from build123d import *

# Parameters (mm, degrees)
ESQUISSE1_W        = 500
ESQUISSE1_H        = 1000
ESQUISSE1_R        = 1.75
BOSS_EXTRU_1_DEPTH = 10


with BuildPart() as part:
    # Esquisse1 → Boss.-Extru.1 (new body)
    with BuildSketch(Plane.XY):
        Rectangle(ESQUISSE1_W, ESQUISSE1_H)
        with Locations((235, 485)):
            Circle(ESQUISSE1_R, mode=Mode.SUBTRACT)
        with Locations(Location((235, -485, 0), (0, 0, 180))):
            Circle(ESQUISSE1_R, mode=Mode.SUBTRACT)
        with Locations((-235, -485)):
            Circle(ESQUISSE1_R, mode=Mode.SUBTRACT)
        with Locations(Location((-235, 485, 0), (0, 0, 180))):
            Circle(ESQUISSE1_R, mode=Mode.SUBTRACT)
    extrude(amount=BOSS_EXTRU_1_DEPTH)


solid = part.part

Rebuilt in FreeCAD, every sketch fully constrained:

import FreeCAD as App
import Part
import Sketcher

V = App.Vector

doc = App.newDocument("Part")
body = doc.addObject("PartDesign::Body", "Body")

# Sketch on XY plane
sketch1 = body.newObject("Sketcher::SketchObject", "Sketch")
sketch1.AttachmentSupport = (doc.getObject("XY_Plane"), [""])
sketch1.MapMode = "FlatFace"
sketch1.addGeometry([
    Part.LineSegment(V(-250, 500, 0), V(-250, -500, 0)),  # 0
    Part.LineSegment(V(-250, -500, 0), V(250, -500, 0)),  # 1
    Part.LineSegment(V(250, -500, 0), V(250, 500, 0)),  # 2
    Part.LineSegment(V(250, 500, 0), V(-250, 500, 0)),  # 3
    Part.Circle(V(-235, -485, 0), V(0, 0, 1), 1.75),  # 4
    Part.Circle(V(235, -485, 0), V(0, 0, 1), 1.75),  # 5
    Part.Circle(V(-235, 485, 0), V(0, 0, 1), 1.75),  # 6
    Part.Circle(V(235, 485, 0), V(0, 0, 1), 1.75),  # 7
], False)
sketch1.addConstraint([
    Sketcher.Constraint("Coincident", 0, 2, 1, 1),
    Sketcher.Constraint("Coincident", 1, 2, 2, 1),
    Sketcher.Constraint("Coincident", 2, 2, 3, 1),
    Sketcher.Constraint("Coincident", 3, 2, 0, 1),
    Sketcher.Constraint("Vertical", 0),
    Sketcher.Constraint("Horizontal", 1),
    Sketcher.Constraint("Vertical", 2),
    Sketcher.Constraint("Horizontal", 3),
    Sketcher.Constraint("Equal", 4, 5),
    Sketcher.Constraint("Equal", 5, 6),
    Sketcher.Constraint("Equal", 6, 7),
    Sketcher.Constraint("Symmetric", 5, 3, 6, 3, -1, 1),
    Sketcher.Constraint("Symmetric", 4, 3, 7, 3, -1, 1),
    Sketcher.Constraint("Symmetric", 0, 2, 2, 2, -1, 1),
    Sketcher.Constraint("Symmetric", 4, 3, 5, 3, -2),
    Sketcher.Constraint("Diameter", 4, 3.5),
    Sketcher.Constraint("DistanceX", 1, 1, 1, 2, 500.0),
    Sketcher.Constraint("DistanceY", 0, 2, 0, 1, 1000.0),
    Sketcher.Constraint("DistanceX", 4, 3, -1, 1, 235.0),
    Sketcher.Constraint("DistanceY", 4, 3, -1, 1, 485.0),
])
pad1 = body.newObject("PartDesign::Pad", "Pad")
pad1.Profile = sketch1
pad1.Length = 10

doc.recompute()
